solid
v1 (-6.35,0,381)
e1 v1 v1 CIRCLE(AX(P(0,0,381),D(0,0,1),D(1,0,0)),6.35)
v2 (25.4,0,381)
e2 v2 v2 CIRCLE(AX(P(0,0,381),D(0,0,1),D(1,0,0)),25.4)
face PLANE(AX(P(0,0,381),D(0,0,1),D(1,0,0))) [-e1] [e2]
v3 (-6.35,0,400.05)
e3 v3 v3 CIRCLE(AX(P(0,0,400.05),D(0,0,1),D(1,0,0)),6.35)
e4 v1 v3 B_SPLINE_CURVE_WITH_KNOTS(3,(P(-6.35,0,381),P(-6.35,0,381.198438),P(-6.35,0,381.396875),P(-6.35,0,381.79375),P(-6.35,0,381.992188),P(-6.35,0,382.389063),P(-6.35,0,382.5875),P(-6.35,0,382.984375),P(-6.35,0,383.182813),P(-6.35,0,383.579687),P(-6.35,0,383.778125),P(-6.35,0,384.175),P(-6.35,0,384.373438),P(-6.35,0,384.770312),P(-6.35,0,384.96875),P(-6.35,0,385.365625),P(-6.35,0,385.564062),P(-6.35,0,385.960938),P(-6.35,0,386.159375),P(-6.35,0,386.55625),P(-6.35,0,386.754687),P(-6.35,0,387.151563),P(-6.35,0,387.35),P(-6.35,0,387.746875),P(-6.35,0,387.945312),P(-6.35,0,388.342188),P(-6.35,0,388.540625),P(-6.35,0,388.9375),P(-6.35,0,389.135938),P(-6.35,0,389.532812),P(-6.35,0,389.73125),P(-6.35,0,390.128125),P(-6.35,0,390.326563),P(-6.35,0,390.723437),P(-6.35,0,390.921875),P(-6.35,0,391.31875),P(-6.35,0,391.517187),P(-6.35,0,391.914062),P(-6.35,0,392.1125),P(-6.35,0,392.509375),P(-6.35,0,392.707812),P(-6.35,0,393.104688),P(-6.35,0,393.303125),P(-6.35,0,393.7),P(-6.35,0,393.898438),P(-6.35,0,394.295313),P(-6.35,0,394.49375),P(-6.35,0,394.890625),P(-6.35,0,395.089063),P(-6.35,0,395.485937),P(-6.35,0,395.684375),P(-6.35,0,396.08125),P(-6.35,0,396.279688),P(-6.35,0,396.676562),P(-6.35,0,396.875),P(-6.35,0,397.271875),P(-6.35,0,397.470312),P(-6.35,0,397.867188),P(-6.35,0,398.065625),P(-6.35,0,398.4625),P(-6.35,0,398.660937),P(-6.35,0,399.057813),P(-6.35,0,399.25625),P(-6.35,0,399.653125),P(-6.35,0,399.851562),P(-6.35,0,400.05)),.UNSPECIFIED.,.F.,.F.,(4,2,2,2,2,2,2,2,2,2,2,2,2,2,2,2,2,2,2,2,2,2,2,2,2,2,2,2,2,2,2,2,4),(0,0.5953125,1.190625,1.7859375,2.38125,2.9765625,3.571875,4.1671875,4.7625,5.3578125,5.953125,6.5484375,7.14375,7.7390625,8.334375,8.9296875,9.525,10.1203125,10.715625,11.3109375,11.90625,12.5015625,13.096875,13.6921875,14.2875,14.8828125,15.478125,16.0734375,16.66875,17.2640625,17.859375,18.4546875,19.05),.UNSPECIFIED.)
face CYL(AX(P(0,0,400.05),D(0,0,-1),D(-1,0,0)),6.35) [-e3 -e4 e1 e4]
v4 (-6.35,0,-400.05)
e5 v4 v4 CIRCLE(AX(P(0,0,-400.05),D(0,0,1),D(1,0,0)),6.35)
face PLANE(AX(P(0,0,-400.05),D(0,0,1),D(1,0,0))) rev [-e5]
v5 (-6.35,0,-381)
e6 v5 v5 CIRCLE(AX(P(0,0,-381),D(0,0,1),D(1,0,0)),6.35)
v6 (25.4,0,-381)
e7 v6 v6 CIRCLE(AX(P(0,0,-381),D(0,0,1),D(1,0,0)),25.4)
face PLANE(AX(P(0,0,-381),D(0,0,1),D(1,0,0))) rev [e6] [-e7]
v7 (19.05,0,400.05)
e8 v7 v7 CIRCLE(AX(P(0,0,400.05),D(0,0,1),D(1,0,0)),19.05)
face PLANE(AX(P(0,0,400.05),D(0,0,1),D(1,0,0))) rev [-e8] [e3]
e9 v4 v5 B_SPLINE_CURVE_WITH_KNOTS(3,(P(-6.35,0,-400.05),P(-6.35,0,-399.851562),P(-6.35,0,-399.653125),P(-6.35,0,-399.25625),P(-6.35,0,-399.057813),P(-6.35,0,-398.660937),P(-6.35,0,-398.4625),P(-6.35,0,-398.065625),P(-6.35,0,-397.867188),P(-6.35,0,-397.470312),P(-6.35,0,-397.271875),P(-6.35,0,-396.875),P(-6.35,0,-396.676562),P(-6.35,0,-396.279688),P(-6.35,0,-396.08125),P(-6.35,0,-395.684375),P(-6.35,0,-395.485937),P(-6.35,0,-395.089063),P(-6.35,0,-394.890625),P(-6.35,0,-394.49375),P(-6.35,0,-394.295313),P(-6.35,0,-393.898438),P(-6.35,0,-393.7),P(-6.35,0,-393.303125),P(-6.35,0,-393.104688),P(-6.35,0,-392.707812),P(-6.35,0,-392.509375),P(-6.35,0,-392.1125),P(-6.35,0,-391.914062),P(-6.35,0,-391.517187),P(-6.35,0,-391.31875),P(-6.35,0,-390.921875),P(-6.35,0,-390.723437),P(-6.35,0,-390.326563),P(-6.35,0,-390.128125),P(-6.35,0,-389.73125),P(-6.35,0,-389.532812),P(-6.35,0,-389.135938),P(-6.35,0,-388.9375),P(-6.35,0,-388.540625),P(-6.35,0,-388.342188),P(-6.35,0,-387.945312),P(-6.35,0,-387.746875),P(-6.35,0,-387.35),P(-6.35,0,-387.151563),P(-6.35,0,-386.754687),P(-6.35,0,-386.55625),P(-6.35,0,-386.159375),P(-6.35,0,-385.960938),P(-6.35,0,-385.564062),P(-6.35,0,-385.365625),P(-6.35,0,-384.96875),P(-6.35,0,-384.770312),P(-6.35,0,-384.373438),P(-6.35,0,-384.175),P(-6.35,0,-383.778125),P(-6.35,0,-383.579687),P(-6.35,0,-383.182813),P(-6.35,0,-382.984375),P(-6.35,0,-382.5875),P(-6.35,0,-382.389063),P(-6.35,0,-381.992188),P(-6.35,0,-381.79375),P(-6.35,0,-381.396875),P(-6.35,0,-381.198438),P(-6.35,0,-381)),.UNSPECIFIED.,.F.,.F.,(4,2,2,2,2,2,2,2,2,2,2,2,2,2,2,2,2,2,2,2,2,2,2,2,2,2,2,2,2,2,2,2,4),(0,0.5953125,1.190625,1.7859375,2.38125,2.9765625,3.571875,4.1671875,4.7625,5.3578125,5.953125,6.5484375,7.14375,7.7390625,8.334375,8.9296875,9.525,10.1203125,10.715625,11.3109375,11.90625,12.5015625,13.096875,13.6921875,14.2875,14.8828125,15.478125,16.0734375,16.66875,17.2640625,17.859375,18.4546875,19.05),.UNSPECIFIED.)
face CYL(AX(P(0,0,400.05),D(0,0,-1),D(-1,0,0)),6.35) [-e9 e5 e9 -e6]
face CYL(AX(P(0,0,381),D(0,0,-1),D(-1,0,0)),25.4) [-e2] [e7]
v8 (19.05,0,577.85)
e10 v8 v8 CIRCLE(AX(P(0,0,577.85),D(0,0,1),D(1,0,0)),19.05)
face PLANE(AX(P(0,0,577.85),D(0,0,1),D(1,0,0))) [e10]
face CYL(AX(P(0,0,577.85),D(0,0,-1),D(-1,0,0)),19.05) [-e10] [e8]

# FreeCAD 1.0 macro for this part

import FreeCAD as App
import Part
import Sketcher
Q = App.Units.Quantity

doc = App.newDocument("Part")
params = doc.addObject("Spreadsheet::Sheet", "Params")
for row, (alias, value) in enumerate([
    ("sketch1_diameter", "0.5 in"),
    ("pad1_length", "31.5 in"),
    ("sketch2_diameter", "2 in"),
    ("sketch2_diameter2", "0.5 in"),
    ("pad2_length", "30 in"),
    ("sketch3_diameter", "1.5 in"),
    ("pad3_length", "7 in"),
], start=1):
    params.set(f"A{row}", alias)
    params.set(f"B{row}", "=" + value)
    params.setAlias(f"B{row}", alias)

body = doc.addObject("PartDesign::Body", "Body")

# Sketch on XY plane
sketch1 = body.newObject("Sketcher::SketchObject", "Sketch")
sketch1.AttachmentSupport = (doc.getObject("XY_Plane"), [""])
sketch1.MapMode = "FlatFace"
sketch1.addGeometry(Part.Circle(App.Vector(0, 0, 0), App.Vector(0, 0, 1), 6), False)
sketch1.addConstraint(Sketcher.Constraint("Coincident", 0, 3, -1, 1))
sketch1.addConstraint(Sketcher.Constraint("Diameter", 0, Q("0.5 in")))
sketch1.setExpression("Constraints[1]", "Params.sketch1_diameter")
pad1 = body.newObject("PartDesign::Pad", "Pad")
pad1.Profile = sketch1
pad1.setExpression("Length", "Params.pad1_length")
pad1.Midplane = True

# Sketch on XY plane
sketch2 = body.newObject("Sketcher::SketchObject", "Sketch001")
sketch2.AttachmentSupport = (doc.getObject("XY_Plane"), [""])
sketch2.MapMode = "FlatFace"
sketch2.addGeometry(Part.Circle(App.Vector(0, 0, 0), App.Vector(0, 0, 1), 25), False)
sketch2.addGeometry(Part.Circle(App.Vector(0, 0, 0), App.Vector(0, 0, 1), 6), False)
sketch2.addConstraint(Sketcher.Constraint("Coincident", 0, 3, -1, 1))
sketch2.addConstraint(Sketcher.Constraint("Coincident", 1, 3, -1, 1))
sketch2.addConstraint(Sketcher.Constraint("Diameter", 0, Q("2 in")))
sketch2.addConstraint(Sketcher.Constraint("Diameter", 1, Q("0.5 in")))
sketch2.setExpression("Constraints[2]", "Params.sketch2_diameter")
sketch2.setExpression("Constraints[3]", "Params.sketch2_diameter2")
pad2 = body.newObject("PartDesign::Pad", "Pad001")
pad2.Profile = sketch2
pad2.setExpression("Length", "Params.pad2_length")
pad2.Midplane = True

# Sketch on XY plane
sketch3 = body.newObject("Sketcher::SketchObject", "Sketch002")
sketch3.AttachmentSupport = (doc.getObject("XY_Plane"), [""])
sketch3.MapMode = "FlatFace"
sketch3.AttachmentOffset = App.Placement(App.Vector(0, 0, 15.75 * 25.4), App.Rotation())
sketch3.addGeometry(Part.Circle(App.Vector(0, 0, 0), App.Vector(0, 0, 1), 19), False)
sketch3.addConstraint(Sketcher.Constraint("Coincident", 0, 3, -1, 1))
sketch3.addConstraint(Sketcher.Constraint("Diameter", 0, Q("1.5 in")))
sketch3.setExpression("Constraints[1]", "Params.sketch3_diameter")
pad3 = body.newObject("PartDesign::Pad", "Pad002")
pad3.Profile = sketch3
pad3.setExpression("Length", "Params.pad3_length")

doc.recompute()
